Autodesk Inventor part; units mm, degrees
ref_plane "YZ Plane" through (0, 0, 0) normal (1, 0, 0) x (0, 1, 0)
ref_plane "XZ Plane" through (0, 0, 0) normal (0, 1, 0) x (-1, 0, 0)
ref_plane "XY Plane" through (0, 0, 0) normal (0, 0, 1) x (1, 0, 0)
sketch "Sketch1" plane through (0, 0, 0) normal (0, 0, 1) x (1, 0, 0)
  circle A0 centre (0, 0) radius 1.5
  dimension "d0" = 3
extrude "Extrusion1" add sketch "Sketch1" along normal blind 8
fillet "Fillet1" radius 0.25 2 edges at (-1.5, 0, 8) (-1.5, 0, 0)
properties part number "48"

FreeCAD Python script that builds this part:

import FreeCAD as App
import Part
import Sketcher

V = App.Vector


def edges_at(feature, points):
    """Names of the edges that pass closest to the given points."""
    edges = feature.Shape.Edges
    near = lambda p: min(range(len(edges)), key=lambda i: edges[i].distToShape(Part.Vertex(*p))[0])
    return sorted({f"Edge{near(p) + 1}" for p in points})

doc = App.newDocument("Part")
body = doc.addObject("PartDesign::Body", "Body")

sketch1 = doc.addObject("Sketcher::SketchObject", "Sketch")
body.addObject(sketch1)
sketch1.AttachmentSupport = (doc.XY_Plane, [""])
sketch1.MapMode = "FlatFace"
sketch1.addGeometry(Part.Circle(V(0, 0, 0), V(0, 0, 1), 1.5), False)
sketch1.addConstraint([
    Sketcher.Constraint("Coincident", 0, 3, -1, 1),
    Sketcher.Constraint("Diameter", 0, 3.0),
])
pad1 = doc.addObject("PartDesign::Pad", "Pad")
body.addObject(pad1)
pad1.Profile = sketch1
pad1.Length = 8
doc.recompute()

fillet = doc.addObject("PartDesign::Fillet", "Fillet")
body.addObject(fillet)
fillet.Base = (pad1, edges_at(pad1, [(-1.5, 0, 8), (-1.5, 0, 0)]))
fillet.Radius = 0.25

doc.recompute()
